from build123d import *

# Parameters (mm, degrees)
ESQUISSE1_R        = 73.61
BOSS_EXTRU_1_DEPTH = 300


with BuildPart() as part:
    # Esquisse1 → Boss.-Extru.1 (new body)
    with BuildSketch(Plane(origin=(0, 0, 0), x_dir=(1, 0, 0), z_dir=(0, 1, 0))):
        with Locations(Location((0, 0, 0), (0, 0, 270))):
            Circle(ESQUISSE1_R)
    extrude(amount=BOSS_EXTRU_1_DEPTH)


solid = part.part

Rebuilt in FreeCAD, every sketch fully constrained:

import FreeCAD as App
import Part
import Sketcher

V = App.Vector

doc = App.newDocument("Part")
params = doc.addObject("Spreadsheet::Sheet", "Params")
for row, (alias, value) in enumerate([
    ("sketch1_diameter", "147.22 mm"),
    ("pad1_length", "300 mm"),
], start=1):
    params.set(f"A{row}", alias)
    params.set(f"B{row}", "=" + value)
    params.setAlias(f"B{row}", alias)

body = doc.addObject("PartDesign::Body", "Body")

# Sketch on XZ plane
sketch1 = body.newObject("Sketcher::SketchObject", "Sketch")
sketch1.AttachmentSupport = (doc.getObject("XZ_Plane"), [""])
sketch1.MapMode = "FlatFace"
sketch1.addGeometry(Part.Circle(V(0, 0, 0), V(0, 0, 1), 74), False)
sketch1.addConstraint([
    Sketcher.Constraint("Coincident", 0, 3, -1, 1),
    Sketcher.Constraint("Diameter", 0, 147.22),
])
sketch1.setExpression("Constraints[1]", "Params.sketch1_diameter")
pad1 = body.newObject("PartDesign::Pad", "Pad")
pad1.Profile = sketch1
pad1.setExpression("Length", "Params.pad1_length")
pad1.Reversed = True

doc.recompute()
